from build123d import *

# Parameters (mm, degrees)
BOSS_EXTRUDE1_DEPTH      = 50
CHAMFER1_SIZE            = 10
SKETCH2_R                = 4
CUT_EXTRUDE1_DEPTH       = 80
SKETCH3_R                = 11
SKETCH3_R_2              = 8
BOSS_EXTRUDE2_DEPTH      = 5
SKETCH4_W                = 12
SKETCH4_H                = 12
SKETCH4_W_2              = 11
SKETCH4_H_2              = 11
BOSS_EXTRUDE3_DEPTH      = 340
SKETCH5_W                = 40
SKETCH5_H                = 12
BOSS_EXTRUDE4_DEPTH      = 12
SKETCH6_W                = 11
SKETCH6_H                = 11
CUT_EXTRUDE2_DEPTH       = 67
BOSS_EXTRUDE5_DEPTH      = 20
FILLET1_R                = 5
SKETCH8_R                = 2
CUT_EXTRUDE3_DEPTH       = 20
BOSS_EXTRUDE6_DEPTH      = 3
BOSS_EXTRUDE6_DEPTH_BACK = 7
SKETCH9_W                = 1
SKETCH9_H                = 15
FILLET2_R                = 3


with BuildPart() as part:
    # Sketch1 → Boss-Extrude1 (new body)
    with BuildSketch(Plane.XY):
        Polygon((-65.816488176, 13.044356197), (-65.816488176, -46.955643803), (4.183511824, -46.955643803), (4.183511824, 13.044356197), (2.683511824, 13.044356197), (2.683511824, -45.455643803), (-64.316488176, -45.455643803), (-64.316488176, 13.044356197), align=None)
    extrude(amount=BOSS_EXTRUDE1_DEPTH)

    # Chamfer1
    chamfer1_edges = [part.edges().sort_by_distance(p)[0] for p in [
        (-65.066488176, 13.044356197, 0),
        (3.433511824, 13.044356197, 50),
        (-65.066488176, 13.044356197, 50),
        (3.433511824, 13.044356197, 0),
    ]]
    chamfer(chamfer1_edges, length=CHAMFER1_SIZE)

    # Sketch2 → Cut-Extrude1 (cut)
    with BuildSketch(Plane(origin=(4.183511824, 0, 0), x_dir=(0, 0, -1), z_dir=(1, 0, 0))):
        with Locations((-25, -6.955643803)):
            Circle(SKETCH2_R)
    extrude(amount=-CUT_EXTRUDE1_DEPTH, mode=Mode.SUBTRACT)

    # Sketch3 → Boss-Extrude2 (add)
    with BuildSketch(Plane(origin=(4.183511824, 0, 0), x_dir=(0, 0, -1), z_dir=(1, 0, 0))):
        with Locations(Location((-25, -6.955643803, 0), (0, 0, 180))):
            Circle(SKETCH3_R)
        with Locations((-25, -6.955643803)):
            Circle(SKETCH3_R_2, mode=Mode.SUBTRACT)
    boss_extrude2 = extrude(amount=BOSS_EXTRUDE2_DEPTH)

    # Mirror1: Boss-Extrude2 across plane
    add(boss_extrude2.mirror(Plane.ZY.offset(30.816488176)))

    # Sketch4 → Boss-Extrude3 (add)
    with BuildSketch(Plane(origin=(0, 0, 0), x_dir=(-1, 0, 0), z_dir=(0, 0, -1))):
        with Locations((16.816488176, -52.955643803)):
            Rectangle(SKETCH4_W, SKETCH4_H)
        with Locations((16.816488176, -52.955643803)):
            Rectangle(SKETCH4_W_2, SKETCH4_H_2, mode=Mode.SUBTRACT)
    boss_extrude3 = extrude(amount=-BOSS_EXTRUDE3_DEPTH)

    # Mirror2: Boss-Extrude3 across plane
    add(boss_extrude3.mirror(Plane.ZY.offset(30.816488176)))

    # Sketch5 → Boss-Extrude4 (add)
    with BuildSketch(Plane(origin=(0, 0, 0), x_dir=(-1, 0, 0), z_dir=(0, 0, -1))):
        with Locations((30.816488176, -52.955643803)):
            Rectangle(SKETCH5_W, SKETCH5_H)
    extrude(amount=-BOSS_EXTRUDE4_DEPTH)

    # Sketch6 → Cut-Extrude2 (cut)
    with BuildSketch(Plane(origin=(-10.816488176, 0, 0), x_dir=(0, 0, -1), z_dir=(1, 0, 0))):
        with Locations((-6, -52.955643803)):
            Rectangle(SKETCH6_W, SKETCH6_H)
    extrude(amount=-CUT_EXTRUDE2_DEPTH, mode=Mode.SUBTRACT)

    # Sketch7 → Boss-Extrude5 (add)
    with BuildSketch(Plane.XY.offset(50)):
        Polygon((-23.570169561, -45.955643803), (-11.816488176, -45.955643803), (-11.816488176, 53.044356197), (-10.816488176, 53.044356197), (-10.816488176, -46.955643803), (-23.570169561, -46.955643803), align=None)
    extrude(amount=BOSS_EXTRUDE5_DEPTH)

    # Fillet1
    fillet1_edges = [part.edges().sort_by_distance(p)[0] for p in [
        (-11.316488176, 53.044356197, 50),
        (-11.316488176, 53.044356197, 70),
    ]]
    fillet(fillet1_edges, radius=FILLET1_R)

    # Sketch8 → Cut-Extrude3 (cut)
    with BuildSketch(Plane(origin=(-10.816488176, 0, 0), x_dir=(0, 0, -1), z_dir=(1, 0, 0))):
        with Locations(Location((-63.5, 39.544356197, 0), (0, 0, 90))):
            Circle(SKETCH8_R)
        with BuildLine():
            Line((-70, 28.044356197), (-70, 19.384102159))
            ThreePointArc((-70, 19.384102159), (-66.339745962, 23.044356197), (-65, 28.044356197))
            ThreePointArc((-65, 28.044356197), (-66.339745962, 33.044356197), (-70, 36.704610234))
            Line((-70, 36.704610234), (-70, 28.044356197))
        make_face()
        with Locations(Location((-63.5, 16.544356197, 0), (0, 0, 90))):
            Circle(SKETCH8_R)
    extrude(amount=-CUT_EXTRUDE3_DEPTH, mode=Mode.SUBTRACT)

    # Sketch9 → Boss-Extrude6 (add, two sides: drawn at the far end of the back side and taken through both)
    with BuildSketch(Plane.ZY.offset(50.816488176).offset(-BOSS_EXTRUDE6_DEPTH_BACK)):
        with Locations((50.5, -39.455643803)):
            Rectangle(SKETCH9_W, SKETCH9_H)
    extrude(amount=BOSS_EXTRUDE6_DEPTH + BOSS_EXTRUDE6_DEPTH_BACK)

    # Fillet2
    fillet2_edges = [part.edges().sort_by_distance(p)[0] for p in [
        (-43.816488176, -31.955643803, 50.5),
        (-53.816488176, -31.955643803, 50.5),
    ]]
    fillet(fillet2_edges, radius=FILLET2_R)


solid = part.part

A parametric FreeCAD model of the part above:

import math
import FreeCAD as App
import Part
import Sketcher


def edges_at(feature, points):
    """Names of the edges that pass closest to the given points."""
    edges = feature.Shape.Edges
    near = lambda p: min(range(len(edges)), key=lambda i: edges[i].distToShape(Part.Vertex(*p))[0])
    return sorted({f"Edge{near(p) + 1}" for p in points})

doc = App.newDocument("Part")
body = doc.addObject("PartDesign::Body", "Body")

# Sketch on XY plane
sketch1 = body.newObject("Sketcher::SketchObject", "Sketch")
sketch1.AttachmentSupport = (doc.getObject("XY_Plane"), [""])
sketch1.MapMode = "FlatFace"
sketch1.addGeometry([
    Part.LineSegment(App.Vector(-65.8, 13, 0), App.Vector(-65.8, -47, 0)),  # 0
    Part.LineSegment(App.Vector(-65.8, -47, 0), App.Vector(4.2, -47, 0)),  # 1
    Part.LineSegment(App.Vector(4.2, -47, 0), App.Vector(4.2, 13, 0)),  # 2
    Part.LineSegment(App.Vector(4.2, 13, 0), App.Vector(2.7, 13, 0)),  # 3
    Part.LineSegment(App.Vector(2.7, 13, 0), App.Vector(2.7, -45.5, 0)),  # 4
    Part.LineSegment(App.Vector(2.7, -45.5, 0), App.Vector(-64.3, -45.5, 0)),  # 5
    Part.LineSegment(App.Vector(-64.3, -45.5, 0), App.Vector(-64.3, 13, 0)),  # 6
    Part.LineSegment(App.Vector(-64.3, 13, 0), App.Vector(-65.8, 13, 0)),  # 7
], False)
sketch1.addConstraint([
    Sketcher.Constraint("Coincident", 0, 2, 1, 1),
    Sketcher.Constraint("Coincident", 1, 2, 2, 1),
    Sketcher.Constraint("Coincident", 2, 2, 3, 1),
    Sketcher.Constraint("Coincident", 3, 2, 4, 1),
    Sketcher.Constraint("Coincident", 4, 2, 5, 1),
    Sketcher.Constraint("Coincident", 5, 2, 6, 1),
    Sketcher.Constraint("Coincident", 6, 2, 7, 1),
    Sketcher.Constraint("Coincident", 7, 2, 0, 1),
    Sketcher.Constraint("Vertical", 0),
    Sketcher.Constraint("Horizontal", 1),
    Sketcher.Constraint("Vertical", 2),
    Sketcher.Constraint("Horizontal", 3),
    Sketcher.Constraint("Vertical", 4),
    Sketcher.Constraint("Horizontal", 5),
    Sketcher.Constraint("Vertical", 6),
    Sketcher.Constraint("Horizontal", 7),
    Sketcher.Constraint("Horizontal", 3, 2, 6, 2),
    Sketcher.Constraint("Equal", 3, 7),
    Sketcher.Constraint("DistanceX", 1, 1, 1, 2, 70.0),
    Sketcher.Constraint("DistanceX", 5, 2, 5, 1, 67.0),
    Sketcher.Constraint("DistanceY", 0, 2, 0, 1, 60.0),
    Sketcher.Constraint("DistanceY", 4, 2, 4, 1, 58.5),
    Sketcher.Constraint("DistanceX", 0, 2, -1, 1, 65.816488),
    Sketcher.Constraint("DistanceY", 0, 2, -1, 1, 46.955644),
])
pad1 = body.newObject("PartDesign::Pad", "Pad")
pad1.Profile = sketch1
pad1.Length = 50
doc.recompute()

chamfer = body.newObject("PartDesign::Chamfer", "Chamfer")
chamfer.Base = (pad1, edges_at(pad1, [
    (-65.066, 13.044, 0),
    (3.434, 13.044, 50),
    (-65.066, 13.044, 50),
    (3.434, 13.044, 0),
]))
chamfer.Size = 10

# Sketch on YZ plane
sketch2 = body.newObject("Sketcher::SketchObject", "Sketch001")
sketch2.AttachmentSupport = (doc.getObject("YZ_Plane"), [""])
sketch2.MapMode = "FlatFace"
sketch2.AttachmentOffset = App.Placement(App.Vector(0, 0, 4.183512), App.Rotation())
sketch2.addGeometry(Part.Circle(App.Vector(-7, 25, 0), App.Vector(0, 0, 1), 4), False)
sketch2.addConstraint([
    Sketcher.Constraint("Diameter", 0, 8.0),
    Sketcher.Constraint("DistanceY", -1, 1, 0, 3, 25.0),
    Sketcher.Constraint("DistanceX", 0, 3, -1, 1, 6.955644),
])
pocket1 = body.newObject("PartDesign::Pocket", "Pocket")
pocket1.Profile = sketch2
pocket1.Length = 80

# Sketch on YZ plane
sketch3 = body.newObject("Sketcher::SketchObject", "Sketch002")
sketch3.AttachmentSupport = (doc.getObject("YZ_Plane"), [""])
sketch3.MapMode = "FlatFace"
sketch3.AttachmentOffset = App.Placement(App.Vector(0, 0, 4.183512), App.Rotation())
sketch3.addGeometry([
    Part.Circle(App.Vector(-7, 25, 0), App.Vector(0, 0, 1), 11),
    Part.Circle(App.Vector(-7, 25, 0), App.Vector(0, 0, 1), 8),
], False)
sketch3.addConstraint([
    Sketcher.Constraint("Coincident", 1, 3, 0, 3),
    Sketcher.Constraint("Diameter", 0, 22.0),
    Sketcher.Constraint("Diameter", 1, 16.0),
    Sketcher.Constraint("DistanceY", -1, 1, 0, 3, 25.0),
    Sketcher.Constraint("DistanceX", 0, 3, -1, 1, 6.955644),
])
pad2 = body.newObject("PartDesign::Pad", "Pad001")
pad2.Profile = sketch3
pad2.Length = 5
doc.recompute()

datumplane = body.newObject("PartDesign::Plane", "DatumPlane")
datumplane.AttachmentSupport = (doc.getObject("YZ_Plane"), [""])
datumplane.MapMode = "FlatFace"
datumplane.AttachmentOffset = App.Placement(App.Vector(0, 0, -30.816488), App.Rotation())
mirrored = body.newObject("PartDesign::Mirrored", "Mirrored")
mirrored.Originals = [pad2]
mirrored.MirrorPlane = (datumplane, [""])
body.Tip = mirrored

# Sketch on XY plane
sketch4 = body.newObject("Sketcher::SketchObject", "Sketch003")
sketch4.AttachmentSupport = (doc.getObject("XY_Plane"), [""])
sketch4.MapMode = "FlatFace"
sketch4.addGeometry([
    Part.LineSegment(App.Vector(-11, -47, 0), App.Vector(-11, -59, 0)),  # 0
    Part.LineSegment(App.Vector(-11, -59, 0), App.Vector(-23, -59, 0)),  # 1
    Part.LineSegment(App.Vector(-23, -59, 0), App.Vector(-23, -47, 0)),  # 2
    Part.LineSegment(App.Vector(-23, -47, 0), App.Vector(-11, -47, 0)),  # 3
    Part.LineSegment(App.Vector(-22, -58, 0), App.Vector(-11, -58, 0)),  # 4
    Part.LineSegment(App.Vector(-11, -58, 0), App.Vector(-11, -47, 0)),  # 5
    Part.LineSegment(App.Vector(-11, -47, 0), App.Vector(-22, -47, 0)),  # 6
    Part.LineSegment(App.Vector(-22, -47, 0), App.Vector(-22, -58, 0)),  # 7
], False)
sketch4.addConstraint([
    Sketcher.Constraint("Coincident", 0, 2, 1, 1),
    Sketcher.Constraint("Coincident", 1, 2, 2, 1),
    Sketcher.Constraint("Coincident", 2, 2, 3, 1),
    Sketcher.Constraint("Coincident", 3, 2, 0, 1),
    Sketcher.Constraint("Coincident", 4, 2, 5, 1),
    Sketcher.Constraint("Coincident", 5, 2, 6, 1),
    Sketcher.Constraint("Coincident", 6, 2, 7, 1),
    Sketcher.Constraint("Coincident", 7, 2, 4, 1),
    Sketcher.Constraint("Vertical", 0),
    Sketcher.Constraint("Horizontal", 1),
    Sketcher.Constraint("Vertical", 2),
    Sketcher.Constraint("Horizontal", 3),
    Sketcher.Constraint("Horizontal", 4),
    Sketcher.Constraint("Vertical", 5),
    Sketcher.Constraint("Horizontal", 6),
    Sketcher.Constraint("Vertical", 7),
    Sketcher.Constraint("Equal", 3, 0),
    Sketcher.Constraint("Equal", 6, 5),
    Sketcher.Constraint("DistanceX", 1, 2, 1, 1, 12.0),
    Sketcher.Constraint("DistanceX", 4, 1, 4, 2, 11.0),
    Sketcher.Constraint("DistanceX", 4, 2, 0, 2, 0.5),
    Sketcher.Constraint("DistanceY", 0, 2, 4, 2, 0.5),
    Sketcher.Constraint("DistanceX", 0, 2, -1, 1, 10.816488),
    Sketcher.Constraint("DistanceY", 0, 2, -1, 1, 58.955644),
])
pad3 = body.newObject("PartDesign::Pad", "Pad002")
pad3.Profile = sketch4
pad3.Length = 340
doc.recompute()

datumplane2 = body.newObject("PartDesign::Plane", "DatumPlane001")
datumplane2.AttachmentSupport = (doc.getObject("YZ_Plane"), [""])
datumplane2.MapMode = "FlatFace"
datumplane2.AttachmentOffset = App.Placement(App.Vector(0, 0, -30.816488), App.Rotation())
mirrored2 = body.newObject("PartDesign::Mirrored", "Mirrored001")
mirrored2.Originals = [pad3]
mirrored2.MirrorPlane = (datumplane2, [""])
body.Tip = mirrored2

# Sketch on XY plane
sketch5 = body.newObject("Sketcher::SketchObject", "Sketch004")
sketch5.AttachmentSupport = (doc.getObject("XY_Plane"), [""])
sketch5.MapMode = "FlatFace"
sketch5.addGeometry([
    Part.LineSegment(App.Vector(-11, -47, 0), App.Vector(-11, -59, 0)),
    Part.LineSegment(App.Vector(-11, -59, 0), App.Vector(-51, -59, 0)),
    Part.LineSegment(App.Vector(-51, -59, 0), App.Vector(-51, -47, 0)),
    Part.LineSegment(App.Vector(-51, -47, 0), App.Vector(-11, -47, 0)),
], False)
sketch5.addConstraint([
    Sketcher.Constraint("Coincident", 0, 2, 1, 1),
    Sketcher.Constraint("Coincident", 1, 2, 2, 1),
    Sketcher.Constraint("Coincident", 2, 2, 3, 1),
    Sketcher.Constraint("Coincident", 3, 2, 0, 1),
    Sketcher.Constraint("Vertical", 0),
    Sketcher.Constraint("Horizontal", 1),
    Sketcher.Constraint("Vertical", 2),
    Sketcher.Constraint("Horizontal", 3),
    Sketcher.Constraint("DistanceX", 1, 2, 1, 1, 40.0),
    Sketcher.Constraint("DistanceY", 0, 2, 0, 1, 12.0),
    Sketcher.Constraint("DistanceX", 0, 2, -1, 1, 10.816488),
    Sketcher.Constraint("DistanceY", 0, 2, -1, 1, 58.955644),
])
pad4 = body.newObject("PartDesign::Pad", "Pad003")
pad4.Profile = sketch5
pad4.Length = 12

# Sketch on YZ plane
sketch6 = body.newObject("Sketcher::SketchObject", "Sketch005")
sketch6.AttachmentSupport = (doc.getObject("YZ_Plane"), [""])
sketch6.MapMode = "FlatFace"
sketch6.AttachmentOffset = App.Placement(App.Vector(0, 0, -10.816488), App.Rotation())
sketch6.addGeometry([
    Part.LineSegment(App.Vector(-47, 12, 0), App.Vector(-58, 12, 0)),
    Part.LineSegment(App.Vector(-58, 12, 0), App.Vector(-58, 0, 0)),
    Part.LineSegment(App.Vector(-58, 0, 0), App.Vector(-47, 0, 0)),
    Part.LineSegment(App.Vector(-47, 0, 0), App.Vector(-47, 12, 0)),
], False)
sketch6.addConstraint([
    Sketcher.Constraint("Coincident", 0, 2, 1, 1),
    Sketcher.Constraint("Coincident", 1, 2, 2, 1),
    Sketcher.Constraint("Coincident", 2, 2, 3, 1),
    Sketcher.Constraint("Coincident", 3, 2, 0, 1),
    Sketcher.Constraint("Horizontal", 0),
    Sketcher.Constraint("Vertical", 1),
    Sketcher.Constraint("Horizontal", 2),
    Sketcher.Constraint("Vertical", 3),
    Sketcher.Constraint("Equal", 2, 1),
    Sketcher.Constraint("DistanceX", 0, 2, 0, 1, 11.0),
    Sketcher.Constraint("DistanceY", -1, 1, 0, 2, 11.5),
    Sketcher.Constraint("DistanceX", 0, 2, -1, 1, 58.455644),
])
pocket2 = body.newObject("PartDesign::Pocket", "Pocket001")
pocket2.Profile = sketch6
pocket2.Length = 67

# Sketch on XY plane
sketch7 = body.newObject("Sketcher::SketchObject", "Sketch006")
sketch7.AttachmentSupport = (doc.getObject("XY_Plane"), [""])
sketch7.MapMode = "FlatFace"
sketch7.AttachmentOffset = App.Placement(App.Vector(0, 0, 50), App.Rotation())
sketch7.addGeometry([
    Part.LineSegment(App.Vector(-11.8, -46, 0), App.Vector(-23.6, -46, 0)),  # 0
    Part.LineSegment(App.Vector(-23.6, -46, 0), App.Vector(-23.6, -47, 0)),  # 1
    Part.LineSegment(App.Vector(-23.6, -47, 0), App.Vector(-10.8, -47, 0)),  # 2
    Part.LineSegment(App.Vector(-10.8, -47, 0), App.Vector(-10.8, 53, 0)),  # 3
    Part.LineSegment(App.Vector(-10.8, 53, 0), App.Vector(-11.8, 53, 0)),  # 4
    Part.LineSegment(App.Vector(-11.8, 53, 0), App.Vector(-11.8, -46, 0)),  # 5
], False)
sketch7.addConstraint([
    Sketcher.Constraint("Coincident", 0, 2, 1, 1),
    Sketcher.Constraint("Coincident", 1, 2, 2, 1),
    Sketcher.Constraint("Coincident", 2, 2, 3, 1),
    Sketcher.Constraint("Coincident", 3, 2, 4, 1),
    Sketcher.Constraint("Coincident", 4, 2, 5, 1),
    Sketcher.Constraint("Coincident", 5, 2, 0, 1),
    Sketcher.Constraint("Horizontal", 0),
    Sketcher.Constraint("Vertical", 1),
    Sketcher.Constraint("Horizontal", 2),
    Sketcher.Constraint("Vertical", 3),
    Sketcher.Constraint("Horizontal", 4),
    Sketcher.Constraint("Vertical", 5),
    Sketcher.Constraint("Equal", 4, 1),
    Sketcher.Constraint("DistanceX", 4, 2, 4, 1, 1.0),
    Sketcher.Constraint("DistanceY", 3, 1, 3, 2, 100.0),
    Sketcher.Constraint("DistanceX", 0, 2, 0, 1, 11.753681),
    Sketcher.Constraint("DistanceX", 0, 2, -1, 1, 23.57017),
    Sketcher.Constraint("DistanceY", 0, 2, -1, 1, 45.955644),
])
pad5 = body.newObject("PartDesign::Pad", "Pad004")
pad5.Profile = sketch7
pad5.Length = 20
doc.recompute()

fillet = body.newObject("PartDesign::Fillet", "Fillet")
fillet.Base = (pad5, edges_at(pad5, [(-11.316, 53.044, 50), (-11.316, 53.044, 70)]))
fillet.Radius = 5

# Sketch on YZ plane
sketch8 = body.newObject("Sketcher::SketchObject", "Sketch007")
sketch8.AttachmentSupport = (doc.getObject("YZ_Plane"), [""])
sketch8.MapMode = "FlatFace"
sketch8.AttachmentOffset = App.Placement(App.Vector(0, 0, -10.816488), App.Rotation())
sketch8.addGeometry([
    Part.Circle(App.Vector(39.5, 63.5, 0), App.Vector(0, 0, 1), 2),  # 0
    Part.ArcOfCircle(Part.Circle(App.Vector(28, 75, 0), App.Vector(0, 0, 1), 10), math.radians(-150), math.radians(-90)),  # 1
    Part.ArcOfCircle(Part.Circle(App.Vector(28, 75, 0), App.Vector(0, 0, 1), 10), math.radians(-90), math.radians(-30)),  # 2
    Part.LineSegment(App.Vector(36.7, 70, 0), App.Vector(19.4, 70, 0)),  # 3
    Part.Circle(App.Vector(16.5, 63.5, 0), App.Vector(0, 0, 1), 2),  # 4
], False)
sketch8.addConstraint([
    Sketcher.Constraint("Tangent", 1, 2, 2, 1),
    Sketcher.Constraint("Coincident", 2, 2, 3, 1),
    Sketcher.Constraint("Coincident", 3, 2, 1, 1),
    Sketcher.Constraint("Horizontal", 3),
    Sketcher.Constraint("Equal", 1, 2),
    Sketcher.Constraint("Equal", 0, 4),
    Sketcher.Constraint("Horizontal", 0, 3, 4, 3),
    Sketcher.Constraint("Vertical", 2, 3, 1, 2),
    Sketcher.Constraint("Diameter", 0, 4.0),
    Sketcher.Constraint("Radius", 1, 10.0),
    Sketcher.Constraint("DistanceY", -1, 1, 1, 3, 75.0),
    Sketcher.Constraint("DistanceY", -1, 1, 2, 2, 70.0),
    Sketcher.Constraint("DistanceX", 4, 3, 0, 3, 23.0),
    Sketcher.Constraint("DistanceY", -1, 1, 0, 3, 63.5),
    Sketcher.Constraint("DistanceX", 1, 3, 0, 3, 11.5),
    Sketcher.Constraint("DistanceX", -1, 1, 2, 2, 36.70461),
])
pocket3 = body.newObject("PartDesign::Pocket", "Pocket002")
pocket3.Profile = sketch8
pocket3.Length = 20

# Sketch on YZ plane
sketch9 = body.newObject("Sketcher::SketchObject", "Sketch008")
sketch9.AttachmentSupport = (doc.getObject("YZ_Plane"), [""])
sketch9.MapMode = "FlatFace"
sketch9.AttachmentOffset = App.Placement(App.Vector(0, 0, -50.816488), App.Rotation())
sketch9.addGeometry([
    Part.LineSegment(App.Vector(-32, 50, 0), App.Vector(-47, 50, 0)),
    Part.LineSegment(App.Vector(-47, 50, 0), App.Vector(-47, 51, 0)),
    Part.LineSegment(App.Vector(-47, 51, 0), App.Vector(-32, 51, 0)),
    Part.LineSegment(App.Vector(-32, 51, 0), App.Vector(-32, 50, 0)),
], False)
sketch9.addConstraint([
    Sketcher.Constraint("Coincident", 0, 2, 1, 1),
    Sketcher.Constraint("Coincident", 1, 2, 2, 1),
    Sketcher.Constraint("Coincident", 2, 2, 3, 1),
    Sketcher.Constraint("Coincident", 3, 2, 0, 1),
    Sketcher.Constraint("Horizontal", 0),
    Sketcher.Constraint("Vertical", 1),
    Sketcher.Constraint("Horizontal", 2),
    Sketcher.Constraint("Vertical", 3),
    Sketcher.Constraint("DistanceX", 0, 2, 0, 1, 15.0),
    Sketcher.Constraint("DistanceY", 1, 1, 1, 2, 1.0),
    Sketcher.Constraint("DistanceY", -1, 1, 0, 2, 50.0),
    Sketcher.Constraint("DistanceX", 0, 2, -1, 1, 46.955644),
])
pad6 = body.newObject("PartDesign::Pad", "Pad005")
pad6.Profile = sketch9
pad6.Type = "TwoLengths"
pad6.Length = 3
pad6.Length2 = 7
pad6.Reversed = True
doc.recompute()

fillet2 = body.newObject("PartDesign::Fillet", "Fillet001")
fillet2.Base = (pad6, edges_at(pad6, [(-43.816, -31.956, 50.5), (-53.816, -31.956, 50.5)]))
fillet2.Radius = 3

doc.recompute()
